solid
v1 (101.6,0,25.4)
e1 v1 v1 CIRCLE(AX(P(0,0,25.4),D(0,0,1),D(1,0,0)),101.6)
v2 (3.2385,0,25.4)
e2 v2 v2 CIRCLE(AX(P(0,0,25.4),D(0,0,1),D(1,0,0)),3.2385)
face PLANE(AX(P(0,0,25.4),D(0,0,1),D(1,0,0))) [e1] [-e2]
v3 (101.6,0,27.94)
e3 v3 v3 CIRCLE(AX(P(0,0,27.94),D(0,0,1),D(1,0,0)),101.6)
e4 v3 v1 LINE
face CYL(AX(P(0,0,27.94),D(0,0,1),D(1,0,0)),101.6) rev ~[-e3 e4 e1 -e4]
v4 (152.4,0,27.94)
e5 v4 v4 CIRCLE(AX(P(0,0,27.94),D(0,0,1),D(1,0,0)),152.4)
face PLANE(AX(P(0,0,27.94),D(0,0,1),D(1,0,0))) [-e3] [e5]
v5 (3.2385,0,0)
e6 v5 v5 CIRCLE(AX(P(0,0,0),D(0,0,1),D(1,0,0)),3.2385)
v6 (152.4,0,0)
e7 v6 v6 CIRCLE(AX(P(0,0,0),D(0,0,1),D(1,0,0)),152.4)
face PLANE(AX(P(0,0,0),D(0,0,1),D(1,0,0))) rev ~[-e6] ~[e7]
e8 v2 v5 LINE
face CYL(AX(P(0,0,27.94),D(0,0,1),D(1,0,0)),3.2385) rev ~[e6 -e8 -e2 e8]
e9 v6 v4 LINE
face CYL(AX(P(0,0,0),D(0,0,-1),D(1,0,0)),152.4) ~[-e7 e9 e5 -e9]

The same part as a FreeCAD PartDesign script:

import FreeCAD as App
import Part
import Sketcher

V = App.Vector
Q = App.Units.Quantity

doc = App.newDocument("Part")
params = doc.addObject("Spreadsheet::Sheet", "Params")
for row, (alias, value) in enumerate([
    ("sketch1_diameter", "12 in"),
    ("pad1_length", "1.1 in"),
    ("sketch2_diameter", "0.255 in"),
    ("sketch3_diameter", "8 in"),
    ("pocket2_length", "0.1 in"),
], start=1):
    params.set(f"A{row}", alias)
    params.set(f"B{row}", "=" + value)
    params.setAlias(f"B{row}", alias)

body = doc.addObject("PartDesign::Body", "Body")

# Sketch on XY plane
sketch1 = body.newObject("Sketcher::SketchObject", "Sketch")
sketch1.AttachmentSupport = (doc.getObject("XY_Plane"), [""])
sketch1.MapMode = "FlatFace"
sketch1.addGeometry(Part.Circle(V(0, 0, 0), V(0, 0, 1), 152), False)
sketch1.addConstraint(Sketcher.Constraint("Coincident", 0, 3, -1, 1))
sketch1.addConstraint(Sketcher.Constraint("Diameter", 0, Q("12 in")))
sketch1.setExpression("Constraints[1]", "Params.sketch1_diameter")
pad1 = body.newObject("PartDesign::Pad", "Pad")
pad1.Profile = sketch1
pad1.setExpression("Length", "Params.pad1_length")

# Sketch on XY plane
sketch2 = body.newObject("Sketcher::SketchObject", "Sketch001")
sketch2.AttachmentSupport = (doc.getObject("XY_Plane"), [""])
sketch2.MapMode = "FlatFace"
sketch2.AttachmentOffset = App.Placement(V(0, 0, 1.1 * 25.4), App.Rotation())
sketch2.addGeometry(Part.Circle(V(0, 0, 0), V(0, 0, 1), 3.2), False)
sketch2.addConstraint(Sketcher.Constraint("Coincident", 0, 3, -1, 1))
sketch2.addConstraint(Sketcher.Constraint("Diameter", 0, Q("0.255 in")))
sketch2.setExpression("Constraints[1]", "Params.sketch2_diameter")
pocket1 = body.newObject("PartDesign::Pocket", "Pocket")
pocket1.Profile = sketch2
pocket1.Type = "ThroughAll"

# Sketch on XY plane
sketch3 = body.newObject("Sketcher::SketchObject", "Sketch002")
sketch3.AttachmentSupport = (doc.getObject("XY_Plane"), [""])
sketch3.MapMode = "FlatFace"
sketch3.AttachmentOffset = App.Placement(V(0, 0, 1.1 * 25.4), App.Rotation())
sketch3.addGeometry(Part.Circle(V(0, 0, 0), V(0, 0, 1), 102), False)
sketch3.addConstraint(Sketcher.Constraint("Coincident", 0, 3, -1, 1))
sketch3.addConstraint(Sketcher.Constraint("Diameter", 0, Q("8 in")))
sketch3.setExpression("Constraints[1]", "Params.sketch3_diameter")
pocket2 = body.newObject("PartDesign::Pocket", "Pocket001")
pocket2.Profile = sketch3
pocket2.setExpression("Length", "Params.pocket2_length")

doc.recompute()
